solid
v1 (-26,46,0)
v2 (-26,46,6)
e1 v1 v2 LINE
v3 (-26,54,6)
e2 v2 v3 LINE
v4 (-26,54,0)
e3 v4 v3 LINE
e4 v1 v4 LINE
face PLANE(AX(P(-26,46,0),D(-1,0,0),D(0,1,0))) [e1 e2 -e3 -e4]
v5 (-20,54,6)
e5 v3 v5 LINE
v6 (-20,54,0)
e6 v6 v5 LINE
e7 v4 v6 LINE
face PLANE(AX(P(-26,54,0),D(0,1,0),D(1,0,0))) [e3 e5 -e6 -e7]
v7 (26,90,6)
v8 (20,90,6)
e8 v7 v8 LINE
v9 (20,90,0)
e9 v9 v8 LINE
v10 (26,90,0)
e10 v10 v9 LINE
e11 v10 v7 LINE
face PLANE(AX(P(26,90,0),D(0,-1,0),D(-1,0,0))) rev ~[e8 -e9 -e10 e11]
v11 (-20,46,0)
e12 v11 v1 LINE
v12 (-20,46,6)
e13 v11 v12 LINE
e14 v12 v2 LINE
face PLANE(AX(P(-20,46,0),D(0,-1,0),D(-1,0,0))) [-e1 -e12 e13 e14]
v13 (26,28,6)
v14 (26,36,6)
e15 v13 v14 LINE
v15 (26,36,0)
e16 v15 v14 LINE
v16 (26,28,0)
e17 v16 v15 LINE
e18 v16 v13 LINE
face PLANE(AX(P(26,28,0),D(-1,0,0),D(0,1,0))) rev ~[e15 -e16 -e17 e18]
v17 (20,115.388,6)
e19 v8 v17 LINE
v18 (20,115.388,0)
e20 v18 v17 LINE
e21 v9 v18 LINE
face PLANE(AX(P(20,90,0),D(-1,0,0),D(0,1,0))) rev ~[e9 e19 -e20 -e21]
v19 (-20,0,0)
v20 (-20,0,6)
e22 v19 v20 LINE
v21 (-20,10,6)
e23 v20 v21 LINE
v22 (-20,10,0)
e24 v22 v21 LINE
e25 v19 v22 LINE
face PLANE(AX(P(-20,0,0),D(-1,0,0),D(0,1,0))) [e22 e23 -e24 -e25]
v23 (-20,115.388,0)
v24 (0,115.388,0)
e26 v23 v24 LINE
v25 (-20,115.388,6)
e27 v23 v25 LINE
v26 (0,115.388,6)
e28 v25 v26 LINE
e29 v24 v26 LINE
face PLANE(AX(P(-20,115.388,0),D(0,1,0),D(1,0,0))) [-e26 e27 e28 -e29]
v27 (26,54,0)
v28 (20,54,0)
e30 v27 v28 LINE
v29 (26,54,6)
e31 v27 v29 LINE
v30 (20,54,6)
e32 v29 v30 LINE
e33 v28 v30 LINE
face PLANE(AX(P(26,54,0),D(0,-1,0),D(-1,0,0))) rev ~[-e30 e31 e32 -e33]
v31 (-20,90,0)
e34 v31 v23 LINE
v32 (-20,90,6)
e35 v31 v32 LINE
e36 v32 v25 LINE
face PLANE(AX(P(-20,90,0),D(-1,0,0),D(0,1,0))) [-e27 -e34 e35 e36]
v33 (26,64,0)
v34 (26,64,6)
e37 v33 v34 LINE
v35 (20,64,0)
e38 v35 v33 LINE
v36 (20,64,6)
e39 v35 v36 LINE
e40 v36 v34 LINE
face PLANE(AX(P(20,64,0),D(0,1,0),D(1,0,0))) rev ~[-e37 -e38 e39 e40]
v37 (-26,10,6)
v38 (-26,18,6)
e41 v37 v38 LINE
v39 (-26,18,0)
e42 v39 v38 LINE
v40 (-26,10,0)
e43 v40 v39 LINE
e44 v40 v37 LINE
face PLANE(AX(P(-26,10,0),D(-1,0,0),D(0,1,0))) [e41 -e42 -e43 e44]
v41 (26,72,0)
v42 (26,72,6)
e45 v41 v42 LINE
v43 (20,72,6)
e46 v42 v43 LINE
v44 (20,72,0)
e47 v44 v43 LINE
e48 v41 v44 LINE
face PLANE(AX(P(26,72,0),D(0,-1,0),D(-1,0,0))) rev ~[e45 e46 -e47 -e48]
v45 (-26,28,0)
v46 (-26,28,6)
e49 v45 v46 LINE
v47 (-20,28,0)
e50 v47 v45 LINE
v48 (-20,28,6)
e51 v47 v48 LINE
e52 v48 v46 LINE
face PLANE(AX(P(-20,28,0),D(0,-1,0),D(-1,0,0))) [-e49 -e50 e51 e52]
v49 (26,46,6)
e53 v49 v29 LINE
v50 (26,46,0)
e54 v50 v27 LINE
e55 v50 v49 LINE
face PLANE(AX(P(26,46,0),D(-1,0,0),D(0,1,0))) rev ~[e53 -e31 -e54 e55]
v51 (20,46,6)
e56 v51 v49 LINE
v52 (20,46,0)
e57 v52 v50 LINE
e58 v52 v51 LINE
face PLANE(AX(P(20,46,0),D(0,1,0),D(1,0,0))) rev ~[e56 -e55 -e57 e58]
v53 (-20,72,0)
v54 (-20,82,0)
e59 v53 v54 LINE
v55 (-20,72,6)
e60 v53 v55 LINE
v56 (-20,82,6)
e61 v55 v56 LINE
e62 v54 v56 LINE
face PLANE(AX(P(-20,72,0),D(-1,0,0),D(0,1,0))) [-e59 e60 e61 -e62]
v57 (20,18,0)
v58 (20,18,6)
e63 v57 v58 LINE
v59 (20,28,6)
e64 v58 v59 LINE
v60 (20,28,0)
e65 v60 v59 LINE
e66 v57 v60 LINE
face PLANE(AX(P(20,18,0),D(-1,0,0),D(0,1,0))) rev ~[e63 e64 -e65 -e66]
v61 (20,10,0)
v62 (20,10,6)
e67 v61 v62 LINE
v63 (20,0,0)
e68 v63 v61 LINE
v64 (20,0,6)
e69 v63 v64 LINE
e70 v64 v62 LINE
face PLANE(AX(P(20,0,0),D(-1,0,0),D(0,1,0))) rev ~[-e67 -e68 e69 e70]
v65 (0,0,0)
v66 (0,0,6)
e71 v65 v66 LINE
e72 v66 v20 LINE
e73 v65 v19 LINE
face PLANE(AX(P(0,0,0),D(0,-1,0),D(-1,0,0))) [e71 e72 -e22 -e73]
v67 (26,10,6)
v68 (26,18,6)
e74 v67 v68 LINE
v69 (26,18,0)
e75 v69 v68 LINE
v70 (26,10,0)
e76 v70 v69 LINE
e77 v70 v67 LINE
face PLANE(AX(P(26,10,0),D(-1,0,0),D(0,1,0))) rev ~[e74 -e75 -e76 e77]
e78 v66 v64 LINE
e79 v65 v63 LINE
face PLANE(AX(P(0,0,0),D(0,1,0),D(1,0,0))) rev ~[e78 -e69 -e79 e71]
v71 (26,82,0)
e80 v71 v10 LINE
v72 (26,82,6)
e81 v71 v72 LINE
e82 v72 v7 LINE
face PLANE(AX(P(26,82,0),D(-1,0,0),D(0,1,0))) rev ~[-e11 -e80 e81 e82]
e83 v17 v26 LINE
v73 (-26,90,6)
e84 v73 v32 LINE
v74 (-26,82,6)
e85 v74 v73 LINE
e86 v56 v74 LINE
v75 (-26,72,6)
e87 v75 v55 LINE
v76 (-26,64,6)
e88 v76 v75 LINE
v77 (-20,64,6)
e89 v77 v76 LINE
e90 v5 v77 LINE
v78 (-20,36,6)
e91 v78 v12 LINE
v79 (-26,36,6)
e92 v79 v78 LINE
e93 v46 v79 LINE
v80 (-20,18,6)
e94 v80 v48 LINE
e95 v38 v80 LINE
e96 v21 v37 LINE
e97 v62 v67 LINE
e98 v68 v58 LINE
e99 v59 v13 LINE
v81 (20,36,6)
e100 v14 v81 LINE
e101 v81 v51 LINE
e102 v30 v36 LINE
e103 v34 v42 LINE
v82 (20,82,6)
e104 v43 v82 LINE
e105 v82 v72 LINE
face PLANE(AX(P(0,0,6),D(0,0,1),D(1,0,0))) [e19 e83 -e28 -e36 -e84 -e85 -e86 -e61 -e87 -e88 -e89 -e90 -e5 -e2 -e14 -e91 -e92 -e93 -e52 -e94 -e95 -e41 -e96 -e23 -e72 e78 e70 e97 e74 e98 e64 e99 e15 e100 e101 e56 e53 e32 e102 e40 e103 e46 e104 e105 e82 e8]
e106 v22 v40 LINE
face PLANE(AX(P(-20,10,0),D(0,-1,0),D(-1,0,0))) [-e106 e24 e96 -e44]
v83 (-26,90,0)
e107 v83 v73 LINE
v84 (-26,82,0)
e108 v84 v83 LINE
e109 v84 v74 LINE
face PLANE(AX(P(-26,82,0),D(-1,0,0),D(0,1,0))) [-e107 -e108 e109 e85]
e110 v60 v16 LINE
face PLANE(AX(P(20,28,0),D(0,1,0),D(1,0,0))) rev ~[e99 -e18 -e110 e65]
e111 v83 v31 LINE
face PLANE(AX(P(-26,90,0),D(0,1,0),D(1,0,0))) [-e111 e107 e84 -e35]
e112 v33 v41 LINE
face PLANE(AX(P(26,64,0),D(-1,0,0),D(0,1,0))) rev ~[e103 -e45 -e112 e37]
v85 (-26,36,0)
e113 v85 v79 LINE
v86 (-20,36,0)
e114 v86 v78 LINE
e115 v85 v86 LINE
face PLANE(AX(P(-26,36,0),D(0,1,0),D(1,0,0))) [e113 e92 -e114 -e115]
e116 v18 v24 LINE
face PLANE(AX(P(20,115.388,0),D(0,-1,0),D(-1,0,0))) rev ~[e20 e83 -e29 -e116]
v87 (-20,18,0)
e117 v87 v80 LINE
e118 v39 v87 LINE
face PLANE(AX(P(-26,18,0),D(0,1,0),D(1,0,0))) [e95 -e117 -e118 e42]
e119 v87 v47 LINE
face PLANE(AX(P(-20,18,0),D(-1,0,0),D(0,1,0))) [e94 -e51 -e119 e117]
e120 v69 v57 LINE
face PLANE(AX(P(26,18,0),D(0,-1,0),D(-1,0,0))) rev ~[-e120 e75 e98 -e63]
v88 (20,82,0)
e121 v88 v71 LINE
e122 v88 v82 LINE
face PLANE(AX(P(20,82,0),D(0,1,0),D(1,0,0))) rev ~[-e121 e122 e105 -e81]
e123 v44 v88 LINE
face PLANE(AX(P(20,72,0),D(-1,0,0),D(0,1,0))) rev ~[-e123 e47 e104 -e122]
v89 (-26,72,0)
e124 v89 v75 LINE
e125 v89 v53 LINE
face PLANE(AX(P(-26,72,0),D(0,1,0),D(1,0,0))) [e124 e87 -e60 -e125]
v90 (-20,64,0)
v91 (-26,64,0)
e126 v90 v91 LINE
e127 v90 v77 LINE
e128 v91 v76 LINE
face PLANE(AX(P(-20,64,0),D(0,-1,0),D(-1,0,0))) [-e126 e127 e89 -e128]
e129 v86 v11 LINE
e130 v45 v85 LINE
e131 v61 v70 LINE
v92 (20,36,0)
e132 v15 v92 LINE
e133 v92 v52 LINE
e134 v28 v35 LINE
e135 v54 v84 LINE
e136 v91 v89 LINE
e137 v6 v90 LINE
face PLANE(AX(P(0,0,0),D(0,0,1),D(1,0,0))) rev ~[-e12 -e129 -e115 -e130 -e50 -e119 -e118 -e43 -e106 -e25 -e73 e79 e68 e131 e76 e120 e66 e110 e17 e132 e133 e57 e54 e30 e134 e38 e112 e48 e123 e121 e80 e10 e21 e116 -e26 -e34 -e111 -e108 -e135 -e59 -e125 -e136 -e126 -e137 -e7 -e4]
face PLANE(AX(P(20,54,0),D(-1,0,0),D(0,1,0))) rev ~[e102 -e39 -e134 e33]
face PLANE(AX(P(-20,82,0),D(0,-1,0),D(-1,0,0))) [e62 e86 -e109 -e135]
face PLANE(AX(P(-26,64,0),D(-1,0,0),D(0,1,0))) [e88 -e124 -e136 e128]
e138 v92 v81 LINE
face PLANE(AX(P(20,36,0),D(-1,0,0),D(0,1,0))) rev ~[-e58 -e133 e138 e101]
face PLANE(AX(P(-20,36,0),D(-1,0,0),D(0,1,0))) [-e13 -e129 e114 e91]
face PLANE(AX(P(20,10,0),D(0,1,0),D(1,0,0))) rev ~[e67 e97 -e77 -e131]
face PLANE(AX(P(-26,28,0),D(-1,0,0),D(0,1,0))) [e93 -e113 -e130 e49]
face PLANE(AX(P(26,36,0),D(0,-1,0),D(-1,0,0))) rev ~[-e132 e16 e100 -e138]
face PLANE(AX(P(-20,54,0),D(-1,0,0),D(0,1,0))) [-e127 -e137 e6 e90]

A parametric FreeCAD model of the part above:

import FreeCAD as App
import Part
import Sketcher
from FreeCAD import Vector
Q = App.Units.Quantity

doc = App.newDocument("Part")
body = doc.addObject("PartDesign::Body", "Body")

# Sketch on XY plane
sketch1 = doc.addObject("Sketcher::SketchObject", "Sketch")
body.addObject(sketch1)
sketch1.AttachmentSupport = (doc.XY_Plane, [""])
sketch1.MapMode = "FlatFace"
sketch1.addGeometry([
    Part.LineSegment(Vector(-20, 0, 0), Vector(20, 0, 0)),  # 0
    Part.LineSegment(Vector(20, 0, 0), Vector(20, 10, 0)),  # 1
    Part.LineSegment(Vector(20, 10, 0), Vector(26, 10, 0)),  # 2
    Part.LineSegment(Vector(26, 10, 0), Vector(26, 18, 0)),  # 3
    Part.LineSegment(Vector(26, 18, 0), Vector(20, 18, 0)),  # 4
    Part.LineSegment(Vector(20, 18, 0), Vector(20, 28, 0)),  # 5
    Part.LineSegment(Vector(20, 28, 0), Vector(26, 28, 0)),  # 6
    Part.LineSegment(Vector(26, 28, 0), Vector(26, 36, 0)),  # 7
    Part.LineSegment(Vector(26, 36, 0), Vector(20, 36, 0)),  # 8
    Part.LineSegment(Vector(20, 36, 0), Vector(20, 46, 0)),  # 9
    Part.LineSegment(Vector(20, 46, 0), Vector(26, 46, 0)),  # 10
    Part.LineSegment(Vector(26, 46, 0), Vector(26, 54, 0)),  # 11
    Part.LineSegment(Vector(26, 54, 0), Vector(20, 54, 0)),  # 12
    Part.LineSegment(Vector(20, 54, 0), Vector(20, 64, 0)),  # 13
    Part.LineSegment(Vector(20, 64, 0), Vector(26, 64, 0)),  # 14
    Part.LineSegment(Vector(26, 64, 0), Vector(26, 72, 0)),  # 15
    Part.LineSegment(Vector(26, 72, 0), Vector(20, 72, 0)),  # 16
    Part.LineSegment(Vector(20, 72, 0), Vector(20, 82, 0)),  # 17
    Part.LineSegment(Vector(20, 82, 0), Vector(26, 82, 0)),  # 18
    Part.LineSegment(Vector(26, 82, 0), Vector(26, 90, 0)),  # 19
    Part.LineSegment(Vector(26, 90, 0), Vector(20, 90, 0)),  # 20
    Part.LineSegment(Vector(20, 90, 0), Vector(20, 115, 0)),  # 21
    Part.LineSegment(Vector(20, 115, 0), Vector(-20, 115, 0)),  # 22
    Part.LineSegment(Vector(-20, 115, 0), Vector(-20, 90, 0)),  # 23
    Part.LineSegment(Vector(-20, 90, 0), Vector(-26, 90, 0)),  # 24
    Part.LineSegment(Vector(-26, 90, 0), Vector(-26, 82, 0)),  # 25
    Part.LineSegment(Vector(-26, 82, 0), Vector(-20, 82, 0)),  # 26
    Part.LineSegment(Vector(-20, 82, 0), Vector(-20, 72, 0)),  # 27
    Part.LineSegment(Vector(-20, 72, 0), Vector(-26, 72, 0)),  # 28
    Part.LineSegment(Vector(-26, 72, 0), Vector(-26, 64, 0)),  # 29
    Part.LineSegment(Vector(-26, 64, 0), Vector(-20, 64, 0)),  # 30
    Part.LineSegment(Vector(-20, 64, 0), Vector(-20, 54, 0)),  # 31
    Part.LineSegment(Vector(-20, 54, 0), Vector(-26, 54, 0)),  # 32
    Part.LineSegment(Vector(-26, 54, 0), Vector(-26, 46, 0)),  # 33
    Part.LineSegment(Vector(-26, 46, 0), Vector(-20, 46, 0)),  # 34
    Part.LineSegment(Vector(-20, 46, 0), Vector(-20, 36, 0)),  # 35
    Part.LineSegment(Vector(-20, 36, 0), Vector(-26, 36, 0)),  # 36
    Part.LineSegment(Vector(-26, 36, 0), Vector(-26, 28, 0)),  # 37
    Part.LineSegment(Vector(-26, 28, 0), Vector(-20, 28, 0)),  # 38
    Part.LineSegment(Vector(-20, 28, 0), Vector(-20, 18, 0)),  # 39
    Part.LineSegment(Vector(-20, 18, 0), Vector(-26, 18, 0)),  # 40
    Part.LineSegment(Vector(-26, 18, 0), Vector(-26, 10, 0)),  # 41
    Part.LineSegment(Vector(-26, 10, 0), Vector(-20, 10, 0)),  # 42
    Part.LineSegment(Vector(-20, 10, 0), Vector(-20, 0, 0)),  # 43
], False)
sketch1.addConstraint([
    Sketcher.Constraint("Coincident", 0, 2, 1, 1),
    Sketcher.Constraint("Coincident", 1, 2, 2, 1),
    Sketcher.Constraint("Coincident", 2, 2, 3, 1),
    Sketcher.Constraint("Coincident", 3, 2, 4, 1),
    Sketcher.Constraint("Coincident", 4, 2, 5, 1),
    Sketcher.Constraint("Coincident", 5, 2, 6, 1),
    Sketcher.Constraint("Coincident", 6, 2, 7, 1),
    Sketcher.Constraint("Coincident", 7, 2, 8, 1),
    Sketcher.Constraint("Coincident", 8, 2, 9, 1),
    Sketcher.Constraint("Coincident", 9, 2, 10, 1),
    Sketcher.Constraint("Coincident", 10, 2, 11, 1),
    Sketcher.Constraint("Coincident", 11, 2, 12, 1),
    Sketcher.Constraint("Coincident", 12, 2, 13, 1),
    Sketcher.Constraint("Coincident", 13, 2, 14, 1),
    Sketcher.Constraint("Coincident", 14, 2, 15, 1),
    Sketcher.Constraint("Coincident", 15, 2, 16, 1),
    Sketcher.Constraint("Coincident", 16, 2, 17, 1),
    Sketcher.Constraint("Coincident", 17, 2, 18, 1),
    Sketcher.Constraint("Coincident", 18, 2, 19, 1),
    Sketcher.Constraint("Coincident", 19, 2, 20, 1),
    Sketcher.Constraint("Coincident", 20, 2, 21, 1),
    Sketcher.Constraint("Coincident", 21, 2, 22, 1),
    Sketcher.Constraint("Coincident", 22, 2, 23, 1),
    Sketcher.Constraint("Coincident", 23, 2, 24, 1),
    Sketcher.Constraint("Coincident", 24, 2, 25, 1),
    Sketcher.Constraint("Coincident", 25, 2, 26, 1),
    Sketcher.Constraint("Coincident", 26, 2, 27, 1),
    Sketcher.Constraint("Coincident", 27, 2, 28, 1),
    Sketcher.Constraint("Coincident", 28, 2, 29, 1),
    Sketcher.Constraint("Coincident", 29, 2, 30, 1),
    Sketcher.Constraint("Coincident", 30, 2, 31, 1),
    Sketcher.Constraint("Coincident", 31, 2, 32, 1),
    Sketcher.Constraint("Coincident", 32, 2, 33, 1),
    Sketcher.Constraint("Coincident", 33, 2, 34, 1),
    Sketcher.Constraint("Coincident", 34, 2, 35, 1),
    Sketcher.Constraint("Coincident", 35, 2, 36, 1),
    Sketcher.Constraint("Coincident", 36, 2, 37, 1),
    Sketcher.Constraint("Coincident", 37, 2, 38, 1),
    Sketcher.Constraint("Coincident", 38, 2, 39, 1),
    Sketcher.Constraint("Coincident", 39, 2, 40, 1),
    Sketcher.Constraint("Coincident", 40, 2, 41, 1),
    Sketcher.Constraint("Coincident", 41, 2, 42, 1),
    Sketcher.Constraint("Coincident", 42, 2, 43, 1),
    Sketcher.Constraint("Coincident", 43, 2, 0, 1),
    Sketcher.Constraint("Horizontal", 0),
    Sketcher.Constraint("Vertical", 1),
    Sketcher.Constraint("Horizontal", 2),
    Sketcher.Constraint("Vertical", 3),
    Sketcher.Constraint("Horizontal", 4),
    Sketcher.Constraint("Vertical", 5),
    Sketcher.Constraint("Horizontal", 6),
    Sketcher.Constraint("Vertical", 7),
    Sketcher.Constraint("Horizontal", 8),
    Sketcher.Constraint("Vertical", 9),
    Sketcher.Constraint("Horizontal", 10),
    Sketcher.Constraint("Vertical", 11),
    Sketcher.Constraint("Horizontal", 12),
    Sketcher.Constraint("Vertical", 13),
    Sketcher.Constraint("Horizontal", 14),
    Sketcher.Constraint("Vertical", 15),
    Sketcher.Constraint("Horizontal", 16),
    Sketcher.Constraint("Vertical", 17),
    Sketcher.Constraint("Horizontal", 18),
    Sketcher.Constraint("Vertical", 19),
    Sketcher.Constraint("Horizontal", 20),
    Sketcher.Constraint("Vertical", 21),
    Sketcher.Constraint("Horizontal", 22),
    Sketcher.Constraint("Vertical", 23),
    Sketcher.Constraint("Horizontal", 24),
    Sketcher.Constraint("Vertical", 25),
    Sketcher.Constraint("Horizontal", 26),
    Sketcher.Constraint("Vertical", 27),
    Sketcher.Constraint("Horizontal", 28),
    Sketcher.Constraint("Vertical", 29),
    Sketcher.Constraint("Horizontal", 30),
    Sketcher.Constraint("Vertical", 31),
    Sketcher.Constraint("Horizontal", 32),
    Sketcher.Constraint("Vertical", 33),
    Sketcher.Constraint("Horizontal", 34),
    Sketcher.Constraint("Vertical", 35),
    Sketcher.Constraint("Horizontal", 36),
    Sketcher.Constraint("Vertical", 37),
    Sketcher.Constraint("Horizontal", 38),
    Sketcher.Constraint("Vertical", 39),
    Sketcher.Constraint("Horizontal", 40),
    Sketcher.Constraint("Vertical", 41),
    Sketcher.Constraint("Horizontal", 42),
    Sketcher.Constraint("Vertical", 43),
    Sketcher.Constraint("Symmetric", 0, 2, 43, 2, -1, 1),
    Sketcher.Constraint("Symmetric", 20, 2, 23, 2, -2),
    Sketcher.Constraint("Symmetric", 18, 2, 25, 2, -2),
    Sketcher.Constraint("Symmetric", 16, 2, 27, 2, -2),
    Sketcher.Constraint("Symmetric", 14, 2, 29, 2, -2),
    Sketcher.Constraint("Symmetric", 12, 2, 31, 2, -2),
    Sketcher.Constraint("Symmetric", 10, 2, 33, 2, -2),
    Sketcher.Constraint("Symmetric", 8, 2, 35, 2, -2),
    Sketcher.Constraint("Symmetric", 6, 2, 37, 2, -2),
    Sketcher.Constraint("Symmetric", 4, 2, 39, 2, -2),
    Sketcher.Constraint("Symmetric", 2, 2, 41, 2, -2),
    Sketcher.Constraint("Vertical", 1, 2, 4, 2),
    Sketcher.Constraint("Vertical", 3, 2, 6, 2),
    Sketcher.Constraint("Vertical", 5, 2, 8, 2),
    Sketcher.Constraint("Vertical", 7, 2, 10, 2),
    Sketcher.Constraint("Vertical", 9, 2, 12, 2),
    Sketcher.Constraint("Vertical", 11, 2, 14, 2),
    Sketcher.Constraint("Vertical", 13, 2, 16, 2),
    Sketcher.Constraint("Vertical", 15, 2, 18, 2),
    Sketcher.Constraint("Vertical", 17, 2, 20, 2),
    Sketcher.Constraint("Equal", 1, 5),
    Sketcher.Constraint("Equal", 3, 7),
    Sketcher.Constraint("Equal", 5, 9),
    Sketcher.Constraint("Equal", 7, 11),
    Sketcher.Constraint("Equal", 9, 13),
    Sketcher.Constraint("Equal", 11, 15),
    Sketcher.Constraint("Equal", 13, 17),
    Sketcher.Constraint("Equal", 15, 19),
    Sketcher.Constraint("DistanceX", 2, 1, 2, 2, Q("6 mm")),
    Sketcher.Constraint("DistanceY", 1, 1, 1, 2, Q("10 mm")),
    Sketcher.Constraint("DistanceY", 3, 1, 3, 2, Q("8 mm")),
    Sketcher.Constraint("DistanceX", -1, 1, 0, 2, Q("20 mm")),
    Sketcher.Constraint("DistanceY", -1, 1, 21, 2, Q("115.388 mm")),
])
pad1 = doc.addObject("PartDesign::Pad", "Pad")
body.addObject(pad1)
pad1.Profile = sketch1
pad1.Length = 6

doc.recompute()
